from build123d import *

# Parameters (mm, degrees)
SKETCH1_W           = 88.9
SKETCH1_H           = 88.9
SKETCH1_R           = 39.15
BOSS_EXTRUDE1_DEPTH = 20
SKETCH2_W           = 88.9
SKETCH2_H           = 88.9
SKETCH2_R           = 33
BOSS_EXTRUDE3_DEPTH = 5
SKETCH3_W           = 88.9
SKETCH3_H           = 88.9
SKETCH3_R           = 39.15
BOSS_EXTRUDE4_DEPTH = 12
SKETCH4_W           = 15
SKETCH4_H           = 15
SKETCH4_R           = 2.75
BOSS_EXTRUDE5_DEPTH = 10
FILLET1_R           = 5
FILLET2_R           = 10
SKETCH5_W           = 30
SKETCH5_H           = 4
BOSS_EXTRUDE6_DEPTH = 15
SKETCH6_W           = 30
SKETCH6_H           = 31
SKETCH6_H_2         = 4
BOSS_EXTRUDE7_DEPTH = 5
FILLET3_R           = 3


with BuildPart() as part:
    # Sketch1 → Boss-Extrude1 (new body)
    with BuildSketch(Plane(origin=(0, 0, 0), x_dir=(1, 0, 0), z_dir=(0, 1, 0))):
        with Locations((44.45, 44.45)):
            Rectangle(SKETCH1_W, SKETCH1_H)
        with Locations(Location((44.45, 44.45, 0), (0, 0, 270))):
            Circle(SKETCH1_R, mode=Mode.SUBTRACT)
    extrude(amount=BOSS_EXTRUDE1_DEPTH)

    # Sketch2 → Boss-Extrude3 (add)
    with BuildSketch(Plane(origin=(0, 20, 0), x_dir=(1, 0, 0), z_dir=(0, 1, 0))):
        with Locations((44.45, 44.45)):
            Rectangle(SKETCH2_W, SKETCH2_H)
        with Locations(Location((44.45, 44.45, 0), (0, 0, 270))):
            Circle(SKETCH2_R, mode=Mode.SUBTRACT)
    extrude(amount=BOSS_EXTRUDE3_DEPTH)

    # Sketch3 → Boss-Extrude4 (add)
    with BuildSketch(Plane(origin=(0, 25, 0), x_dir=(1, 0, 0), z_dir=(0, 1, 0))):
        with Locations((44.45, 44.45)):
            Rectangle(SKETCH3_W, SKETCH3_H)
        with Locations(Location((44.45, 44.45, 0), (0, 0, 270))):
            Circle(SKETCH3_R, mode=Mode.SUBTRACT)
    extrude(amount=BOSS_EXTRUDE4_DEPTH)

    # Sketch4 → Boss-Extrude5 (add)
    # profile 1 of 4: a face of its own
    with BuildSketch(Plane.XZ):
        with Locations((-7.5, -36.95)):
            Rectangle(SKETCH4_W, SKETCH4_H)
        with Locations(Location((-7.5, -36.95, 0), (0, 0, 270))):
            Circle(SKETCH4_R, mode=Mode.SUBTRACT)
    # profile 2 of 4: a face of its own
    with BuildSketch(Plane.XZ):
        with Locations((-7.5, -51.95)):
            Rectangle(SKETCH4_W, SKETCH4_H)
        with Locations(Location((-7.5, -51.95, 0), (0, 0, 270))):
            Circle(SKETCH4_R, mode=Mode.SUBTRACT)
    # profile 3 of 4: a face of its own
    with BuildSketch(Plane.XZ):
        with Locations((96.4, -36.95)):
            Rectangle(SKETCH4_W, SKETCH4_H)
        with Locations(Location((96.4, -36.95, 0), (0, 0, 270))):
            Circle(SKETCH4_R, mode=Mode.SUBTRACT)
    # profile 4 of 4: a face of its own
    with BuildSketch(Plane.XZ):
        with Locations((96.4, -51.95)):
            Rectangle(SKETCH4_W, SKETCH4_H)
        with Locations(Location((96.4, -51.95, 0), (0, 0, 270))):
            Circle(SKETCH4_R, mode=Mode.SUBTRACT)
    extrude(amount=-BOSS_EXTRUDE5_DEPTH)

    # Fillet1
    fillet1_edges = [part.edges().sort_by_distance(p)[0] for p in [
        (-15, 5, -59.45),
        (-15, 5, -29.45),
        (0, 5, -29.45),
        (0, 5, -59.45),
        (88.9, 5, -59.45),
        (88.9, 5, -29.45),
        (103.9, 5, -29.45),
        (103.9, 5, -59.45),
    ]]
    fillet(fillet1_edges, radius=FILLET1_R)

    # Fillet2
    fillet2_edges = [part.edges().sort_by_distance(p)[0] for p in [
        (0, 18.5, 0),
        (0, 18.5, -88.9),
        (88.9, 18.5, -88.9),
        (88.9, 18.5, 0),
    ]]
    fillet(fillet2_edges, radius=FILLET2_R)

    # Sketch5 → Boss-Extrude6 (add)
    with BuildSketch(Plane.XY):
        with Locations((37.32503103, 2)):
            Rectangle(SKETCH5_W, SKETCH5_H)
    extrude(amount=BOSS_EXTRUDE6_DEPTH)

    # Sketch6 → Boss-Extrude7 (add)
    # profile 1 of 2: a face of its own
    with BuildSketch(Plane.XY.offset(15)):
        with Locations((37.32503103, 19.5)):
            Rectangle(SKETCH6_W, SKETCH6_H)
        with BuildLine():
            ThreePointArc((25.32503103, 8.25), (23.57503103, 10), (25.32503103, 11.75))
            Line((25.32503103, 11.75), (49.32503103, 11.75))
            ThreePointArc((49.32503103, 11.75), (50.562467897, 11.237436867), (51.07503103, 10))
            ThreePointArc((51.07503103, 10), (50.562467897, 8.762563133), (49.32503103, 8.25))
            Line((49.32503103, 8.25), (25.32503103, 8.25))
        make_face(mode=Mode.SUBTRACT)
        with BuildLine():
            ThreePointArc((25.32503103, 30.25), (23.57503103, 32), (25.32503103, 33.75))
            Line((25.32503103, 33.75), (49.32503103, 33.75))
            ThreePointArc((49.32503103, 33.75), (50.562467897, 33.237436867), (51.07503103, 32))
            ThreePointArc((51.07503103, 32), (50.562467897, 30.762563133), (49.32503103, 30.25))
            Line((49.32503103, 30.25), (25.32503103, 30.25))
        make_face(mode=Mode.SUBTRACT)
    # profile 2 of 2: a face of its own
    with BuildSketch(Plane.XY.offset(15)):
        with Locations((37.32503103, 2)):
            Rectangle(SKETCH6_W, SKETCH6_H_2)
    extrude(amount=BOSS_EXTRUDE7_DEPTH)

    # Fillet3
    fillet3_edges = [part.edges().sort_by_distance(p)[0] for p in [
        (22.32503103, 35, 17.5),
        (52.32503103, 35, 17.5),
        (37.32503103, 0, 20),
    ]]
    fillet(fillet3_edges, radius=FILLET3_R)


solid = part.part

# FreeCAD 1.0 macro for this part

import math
import FreeCAD as App
import Part
import Sketcher


def edges_at(feature, points):
    """Names of the edges that pass closest to the given points."""
    edges = feature.Shape.Edges
    near = lambda p: min(range(len(edges)), key=lambda i: edges[i].distToShape(Part.Vertex(*p))[0])
    return sorted({f"Edge{near(p) + 1}" for p in points})

doc = App.newDocument("Part")
body = doc.addObject("PartDesign::Body", "Body")

# Sketch on XZ plane
sketch1 = body.newObject("Sketcher::SketchObject", "Sketch")
sketch1.AttachmentSupport = (doc.getObject("XZ_Plane"), [""])
sketch1.MapMode = "FlatFace"
sketch1.addGeometry([
    Part.LineSegment(App.Vector(0, -89, 0), App.Vector(0, 0, 0)),  # 0
    Part.LineSegment(App.Vector(0, 0, 0), App.Vector(89, 0, 0)),  # 1
    Part.LineSegment(App.Vector(89, 0, 0), App.Vector(89, -89, 0)),  # 2
    Part.LineSegment(App.Vector(89, -89, 0), App.Vector(0, -89, 0)),  # 3
    Part.Circle(App.Vector(44, -44, 0), App.Vector(0, 0, 1), 39),  # 4
], False)
sketch1.addConstraint([
    Sketcher.Constraint("Coincident", 0, 2, 1, 1),
    Sketcher.Constraint("Coincident", 1, 2, 2, 1),
    Sketcher.Constraint("Coincident", 2, 2, 3, 1),
    Sketcher.Constraint("Coincident", 3, 2, 0, 1),
    Sketcher.Constraint("Vertical", 0),
    Sketcher.Constraint("Horizontal", 1),
    Sketcher.Constraint("Vertical", 2),
    Sketcher.Constraint("Horizontal", 3),
    Sketcher.Constraint("Coincident", 0, 2, -1, 1),
    Sketcher.Constraint("Equal", 3, 0),
    Sketcher.Constraint("Diameter", 4, 78.3),
    Sketcher.Constraint("DistanceX", 1, 1, 1, 2, 88.9),
    Sketcher.Constraint("DistanceX", -1, 1, 4, 3, 44.45),
    Sketcher.Constraint("DistanceY", 4, 3, -1, 1, 44.45),
])
pad1 = body.newObject("PartDesign::Pad", "Pad")
pad1.Profile = sketch1
pad1.Length = 20
pad1.Reversed = True

# Sketch on XZ plane
sketch2 = body.newObject("Sketcher::SketchObject", "Sketch001")
sketch2.AttachmentSupport = (doc.getObject("XZ_Plane"), [""])
sketch2.MapMode = "FlatFace"
sketch2.AttachmentOffset = App.Placement(App.Vector(0, 0, -20), App.Rotation())
sketch2.addGeometry([
    Part.LineSegment(App.Vector(0, -89, 0), App.Vector(0, 0, 0)),  # 0
    Part.LineSegment(App.Vector(0, 0, 0), App.Vector(89, 0, 0)),  # 1
    Part.LineSegment(App.Vector(89, 0, 0), App.Vector(89, -89, 0)),  # 2
    Part.LineSegment(App.Vector(89, -89, 0), App.Vector(0, -89, 0)),  # 3
    Part.Circle(App.Vector(44, -44, 0), App.Vector(0, 0, 1), 33),  # 4
], False)
sketch2.addConstraint([
    Sketcher.Constraint("Coincident", 0, 2, 1, 1),
    Sketcher.Constraint("Coincident", 1, 2, 2, 1),
    Sketcher.Constraint("Coincident", 2, 2, 3, 1),
    Sketcher.Constraint("Coincident", 3, 2, 0, 1),
    Sketcher.Constraint("Vertical", 0),
    Sketcher.Constraint("Horizontal", 1),
    Sketcher.Constraint("Vertical", 2),
    Sketcher.Constraint("Horizontal", 3),
    Sketcher.Constraint("Coincident", 0, 2, -1, 1),
    Sketcher.Constraint("Equal", 3, 0),
    Sketcher.Constraint("Diameter", 4, 66.0),
    Sketcher.Constraint("DistanceX", 1, 1, 1, 2, 88.9),
    Sketcher.Constraint("DistanceX", -1, 1, 4, 3, 44.45),
    Sketcher.Constraint("DistanceY", 4, 3, -1, 1, 44.45),
])
pad2 = body.newObject("PartDesign::Pad", "Pad001")
pad2.Profile = sketch2
pad2.Length = 5
pad2.Reversed = True

# Sketch on XZ plane
sketch3 = body.newObject("Sketcher::SketchObject", "Sketch002")
sketch3.AttachmentSupport = (doc.getObject("XZ_Plane"), [""])
sketch3.MapMode = "FlatFace"
sketch3.AttachmentOffset = App.Placement(App.Vector(0, 0, -25), App.Rotation())
sketch3.addGeometry([
    Part.LineSegment(App.Vector(0, -89, 0), App.Vector(0, 0, 0)),  # 0
    Part.LineSegment(App.Vector(0, 0, 0), App.Vector(89, 0, 0)),  # 1
    Part.LineSegment(App.Vector(89, 0, 0), App.Vector(89, -89, 0)),  # 2
    Part.LineSegment(App.Vector(89, -89, 0), App.Vector(0, -89, 0)),  # 3
    Part.Circle(App.Vector(44, -44, 0), App.Vector(0, 0, 1), 39),  # 4
], False)
sketch3.addConstraint([
    Sketcher.Constraint("Coincident", 0, 2, 1, 1),
    Sketcher.Constraint("Coincident", 1, 2, 2, 1),
    Sketcher.Constraint("Coincident", 2, 2, 3, 1),
    Sketcher.Constraint("Coincident", 3, 2, 0, 1),
    Sketcher.Constraint("Vertical", 0),
    Sketcher.Constraint("Horizontal", 1),
    Sketcher.Constraint("Vertical", 2),
    Sketcher.Constraint("Horizontal", 3),
    Sketcher.Constraint("Coincident", 0, 2, -1, 1),
    Sketcher.Constraint("Equal", 3, 0),
    Sketcher.Constraint("Diameter", 4, 78.3),
    Sketcher.Constraint("DistanceX", 1, 1, 1, 2, 88.9),
    Sketcher.Constraint("DistanceX", -1, 1, 4, 3, 44.45),
    Sketcher.Constraint("DistanceY", 4, 3, -1, 1, 44.45),
])
pad3 = body.newObject("PartDesign::Pad", "Pad002")
pad3.Profile = sketch3
pad3.Length = 12
pad3.Reversed = True

# Sketch on XZ plane
sketch4 = body.newObject("Sketcher::SketchObject", "Sketch003")
sketch4.AttachmentSupport = (doc.getObject("XZ_Plane"), [""])
sketch4.MapMode = "FlatFace"
sketch4.addGeometry([
    Part.LineSegment(App.Vector(-15, -29.4, 0), App.Vector(-15, -59.5, 0)),  # 0
    Part.LineSegment(App.Vector(-15, -59.5, 0), App.Vector(0, -59.5, 0)),  # 1
    Part.LineSegment(App.Vector(0, -59.5, 0), App.Vector(0, -29.4, 0)),  # 2
    Part.LineSegment(App.Vector(0, -29.4, 0), App.Vector(-15, -29.4, 0)),  # 3
    Part.Circle(App.Vector(-7.5, -37, 0), App.Vector(0, 0, 1), 2.8),  # 4
    Part.Circle(App.Vector(-7.5, -52, 0), App.Vector(0, 0, 1), 2.8),  # 5
    Part.LineSegment(App.Vector(88.9, -29.4, 0), App.Vector(88.9, -59.5, 0)),  # 6
    Part.LineSegment(App.Vector(88.9, -59.5, 0), App.Vector(103.9, -59.5, 0)),  # 7
    Part.LineSegment(App.Vector(103.9, -59.5, 0), App.Vector(103.9, -29.4, 0)),  # 8
    Part.LineSegment(App.Vector(103.9, -29.4, 0), App.Vector(88.9, -29.4, 0)),  # 9
    Part.Circle(App.Vector(96.4, -37, 0), App.Vector(0, 0, 1), 2.8),  # 10
    Part.Circle(App.Vector(96.4, -52, 0), App.Vector(0, 0, 1), 2.8),  # 11
], False)
sketch4.addConstraint([
    Sketcher.Constraint("Coincident", 0, 2, 1, 1),
    Sketcher.Constraint("Coincident", 1, 2, 2, 1),
    Sketcher.Constraint("Coincident", 2, 2, 3, 1),
    Sketcher.Constraint("Coincident", 3, 2, 0, 1),
    Sketcher.Constraint("Coincident", 6, 2, 7, 1),
    Sketcher.Constraint("Coincident", 7, 2, 8, 1),
    Sketcher.Constraint("Coincident", 8, 2, 9, 1),
    Sketcher.Constraint("Coincident", 9, 2, 6, 1),
    Sketcher.Constraint("Vertical", 0),
    Sketcher.Constraint("Horizontal", 1),
    Sketcher.Constraint("Vertical", 2),
    Sketcher.Constraint("Horizontal", 3),
    Sketcher.Constraint("Vertical", 6),
    Sketcher.Constraint("Horizontal", 7),
    Sketcher.Constraint("Vertical", 8),
    Sketcher.Constraint("Horizontal", 9),
    Sketcher.Constraint("Equal", 4, 5),
    Sketcher.Constraint("Equal", 5, 10),
    Sketcher.Constraint("Equal", 10, 11),
    Sketcher.Constraint("PointOnObject", 1, 2, -2),
    Sketcher.Constraint("Horizontal", 4, 3, 10, 3),
    Sketcher.Constraint("Horizontal", 5, 3, 11, 3),
    Sketcher.Constraint("Horizontal", 1, 2, 6, 2),
    Sketcher.Constraint("Horizontal", 3, 2, 8, 2),
    Sketcher.Constraint("Vertical", 4, 3, 5, 3),
    Sketcher.Constraint("Vertical", 10, 3, 11, 3),
    Sketcher.Constraint("Equal", 3, 7),
    Sketcher.Constraint("Diameter", 4, 5.5),
    Sketcher.Constraint("DistanceX", 1, 1, 1, 2, 15.0),
    Sketcher.Constraint("DistanceY", 0, 2, 0, 1, 30.0),
    Sketcher.Constraint("DistanceY", 5, 3, 4, 3, 15.0),
    Sketcher.Constraint("DistanceX", 4, 3, -1, 1, 7.5),
    Sketcher.Constraint("DistanceX", -1, 1, 10, 3, 96.4),
    Sketcher.Constraint("DistanceX", -1, 1, 6, 2, 88.9),
    Sketcher.Constraint("DistanceY", 0, 2, 5, 3, 7.5),
    Sketcher.Constraint("DistanceY", 4, 3, -1, 1, 36.95),
])
pad4 = body.newObject("PartDesign::Pad", "Pad003")
pad4.Profile = sketch4
pad4.Length = 10
pad4.Reversed = True
doc.recompute()

fillet = body.newObject("PartDesign::Fillet", "Fillet")
fillet.Base = (pad4, edges_at(pad4, [
    (-15, 5, -59.45),
    (-15, 5, -29.45),
    (0, 5, -29.45),
    (0, 5, -59.45),
    (88.9, 5, -59.45),
    (88.9, 5, -29.45),
    (103.9, 5, -29.45),
    (103.9, 5, -59.45),
]))
fillet.Radius = 5
doc.recompute()

fillet2 = body.newObject("PartDesign::Fillet", "Fillet001")
fillet2.Base = (fillet, edges_at(fillet, [
    (0, 18.5, 0),
    (0, 18.5, -88.9),
    (88.9, 18.5, -88.9),
    (88.9, 18.5, 0),
]))
fillet2.Radius = 10

# Sketch on XY plane
sketch5 = body.newObject("Sketcher::SketchObject", "Sketch004")
sketch5.AttachmentSupport = (doc.getObject("XY_Plane"), [""])
sketch5.MapMode = "FlatFace"
sketch5.addGeometry([
    Part.LineSegment(App.Vector(22.3, 4, 0), App.Vector(22.3, 0, 0)),
    Part.LineSegment(App.Vector(22.3, 0, 0), App.Vector(52.3, 0, 0)),
    Part.LineSegment(App.Vector(52.3, 0, 0), App.Vector(52.3, 4, 0)),
    Part.LineSegment(App.Vector(52.3, 4, 0), App.Vector(22.3, 4, 0)),
], False)
sketch5.addConstraint([
    Sketcher.Constraint("Coincident", 0, 2, 1, 1),
    Sketcher.Constraint("Coincident", 1, 2, 2, 1),
    Sketcher.Constraint("Coincident", 2, 2, 3, 1),
    Sketcher.Constraint("Coincident", 3, 2, 0, 1),
    Sketcher.Constraint("Vertical", 0),
    Sketcher.Constraint("Horizontal", 1),
    Sketcher.Constraint("Vertical", 2),
    Sketcher.Constraint("Horizontal", 3),
    Sketcher.Constraint("PointOnObject", 0, 2, -1),
    Sketcher.Constraint("DistanceX", 1, 1, 1, 2, 30.0),
    Sketcher.Constraint("DistanceY", 0, 2, 0, 1, 4.0),
    Sketcher.Constraint("DistanceX", -1, 1, 0, 2, 22.325031),
])
pad5 = body.newObject("PartDesign::Pad", "Pad004")
pad5.Profile = sketch5
pad5.Length = 15

# Sketch on XY plane
sketch6 = body.newObject("Sketcher::SketchObject", "Sketch005")
sketch6.AttachmentSupport = (doc.getObject("XY_Plane"), [""])
sketch6.MapMode = "FlatFace"
sketch6.AttachmentOffset = App.Placement(App.Vector(0, 0, 15), App.Rotation())
sketch6.addGeometry([
    Part.LineSegment(App.Vector(22.3, 35, 0), App.Vector(22.3, 0, 0)),  # 0
    Part.LineSegment(App.Vector(22.3, 0, 0), App.Vector(52.3, 0, 0)),  # 1
    Part.LineSegment(App.Vector(52.3, 0, 0), App.Vector(52.3, 35, 0)),  # 2
    Part.LineSegment(App.Vector(52.3, 35, 0), App.Vector(22.3, 35, 0)),  # 3
    Part.LineSegment(App.Vector(49.3, 8.2, 0), App.Vector(25.3, 8.2, 0)),  # 4
    Part.ArcOfCircle(Part.Circle(App.Vector(25.3, 10, 0), App.Vector(0, 0, 1), 1.8), math.radians(90), math.radians(270)),  # 5
    Part.LineSegment(App.Vector(25.3, 11.8, 0), App.Vector(49.3, 11.8, 0)),  # 6
    Part.ArcOfCircle(Part.Circle(App.Vector(49.3, 10, 0), App.Vector(0, 0, 1), 1.8), math.radians(0), math.radians(90)),  # 7
    Part.ArcOfCircle(Part.Circle(App.Vector(49.3, 10, 0), App.Vector(0, 0, 1), 1.8), math.radians(-90), math.radians(0)),  # 8
    Part.LineSegment(App.Vector(49.3, 30.2, 0), App.Vector(25.3, 30.2, 0)),  # 9
    Part.ArcOfCircle(Part.Circle(App.Vector(25.3, 32, 0), App.Vector(0, 0, 1), 1.8), math.radians(90), math.radians(270)),  # 10
    Part.LineSegment(App.Vector(25.3, 33.8, 0), App.Vector(49.3, 33.8, 0)),  # 11
    Part.ArcOfCircle(Part.Circle(App.Vector(49.3, 32, 0), App.Vector(0, 0, 1), 1.8), math.radians(0), math.radians(90)),  # 12
    Part.ArcOfCircle(Part.Circle(App.Vector(49.3, 32, 0), App.Vector(0, 0, 1), 1.8), math.radians(-90), math.radians(0)),  # 13
], False)
sketch6.addConstraint([
    Sketcher.Constraint("Coincident", 0, 2, 1, 1),
    Sketcher.Constraint("Coincident", 1, 2, 2, 1),
    Sketcher.Constraint("Coincident", 2, 2, 3, 1),
    Sketcher.Constraint("Coincident", 3, 2, 0, 1),
    Sketcher.Constraint("Tangent", 4, 2, 5, 2),
    Sketcher.Constraint("Tangent", 5, 1, 6, 1),
    Sketcher.Constraint("Tangent", 6, 2, 7, 2),
    Sketcher.Constraint("Tangent", 7, 1, 8, 2),
    Sketcher.Constraint("Tangent", 8, 1, 4, 1),
    Sketcher.Constraint("Tangent", 9, 2, 10, 2),
    Sketcher.Constraint("Tangent", 10, 1, 11, 1),
    Sketcher.Constraint("Tangent", 11, 2, 12, 2),
    Sketcher.Constraint("Tangent", 12, 1, 13, 2),
    Sketcher.Constraint("Tangent", 13, 1, 9, 1),
    Sketcher.Constraint("Vertical", 0),
    Sketcher.Constraint("Horizontal", 1),
    Sketcher.Constraint("Vertical", 2),
    Sketcher.Constraint("Horizontal", 3),
    Sketcher.Constraint("Horizontal", 4),
    Sketcher.Constraint("Horizontal", 6),
    Sketcher.Constraint("Horizontal", 9),
    Sketcher.Constraint("Horizontal", 11),
    Sketcher.Constraint("Equal", 5, 7),
    Sketcher.Constraint("Equal", 8, 10),
    Sketcher.Constraint("Equal", 10, 12),
    Sketcher.Constraint("PointOnObject", 0, 2, -1),
    Sketcher.Constraint("Horizontal", 8, 3, 7, 1),
    Sketcher.Constraint("Horizontal", 13, 3, 12, 1),
    Sketcher.Constraint("Vertical", 5, 3, 10, 3),
    Sketcher.Constraint("Vertical", 8, 3, 12, 3),
    Sketcher.Constraint("DistanceX", 1, 1, 1, 2, 30.0),
    Sketcher.Constraint("DistanceX", 4, 2, 4, 1, 24.0),
    Sketcher.Constraint("DistanceY", 0, 2, 0, 1, 35.0),
    Sketcher.Constraint("Radius", 5, 1.75),
    Sketcher.Constraint("DistanceY", -1, 1, 5, 3, 10.0),
    Sketcher.Constraint("DistanceY", -1, 1, 10, 3, 32.0),
    Sketcher.Constraint("DistanceX", 0, 2, 5, 3, 3.0),
    Sketcher.Constraint("DistanceX", -1, 1, 5, 3, 25.325031),
])
pad6 = body.newObject("PartDesign::Pad", "Pad005")
pad6.Profile = sketch6
pad6.Length = 5
doc.recompute()

fillet3 = body.newObject("PartDesign::Fillet", "Fillet002")
fillet3.Base = (pad6, edges_at(pad6, [(22.325, 35, 17.5), (52.325, 35, 17.5), (37.325, 0, 20)]))
fillet3.Radius = 3

doc.recompute()
